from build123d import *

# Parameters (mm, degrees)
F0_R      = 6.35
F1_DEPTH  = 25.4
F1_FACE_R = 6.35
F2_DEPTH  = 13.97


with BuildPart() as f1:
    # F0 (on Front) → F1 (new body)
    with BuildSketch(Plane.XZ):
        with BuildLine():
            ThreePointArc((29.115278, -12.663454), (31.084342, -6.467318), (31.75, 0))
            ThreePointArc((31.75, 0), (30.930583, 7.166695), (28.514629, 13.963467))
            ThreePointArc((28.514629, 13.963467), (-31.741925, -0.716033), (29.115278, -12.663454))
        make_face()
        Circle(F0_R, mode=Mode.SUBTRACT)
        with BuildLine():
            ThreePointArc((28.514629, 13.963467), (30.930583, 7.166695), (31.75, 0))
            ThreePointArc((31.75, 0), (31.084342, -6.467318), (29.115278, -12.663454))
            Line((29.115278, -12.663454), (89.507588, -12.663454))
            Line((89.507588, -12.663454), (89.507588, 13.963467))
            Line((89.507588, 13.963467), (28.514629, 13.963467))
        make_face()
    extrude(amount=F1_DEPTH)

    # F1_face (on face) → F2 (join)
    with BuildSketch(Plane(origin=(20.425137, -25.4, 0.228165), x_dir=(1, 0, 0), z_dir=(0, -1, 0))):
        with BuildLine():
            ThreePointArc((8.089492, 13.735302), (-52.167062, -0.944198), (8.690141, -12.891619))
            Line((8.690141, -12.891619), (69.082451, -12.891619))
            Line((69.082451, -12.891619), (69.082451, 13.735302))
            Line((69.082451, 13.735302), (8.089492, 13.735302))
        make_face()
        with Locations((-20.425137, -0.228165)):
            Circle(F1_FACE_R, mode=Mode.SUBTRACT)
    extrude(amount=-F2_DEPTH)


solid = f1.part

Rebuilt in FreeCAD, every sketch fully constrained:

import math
import FreeCAD as App
import Part
import Sketcher
Q = App.Units.Quantity

doc = App.newDocument("Part")
body = doc.addObject("PartDesign::Body", "Body")

# Sketch on XZ plane
sketch1 = body.newObject("Sketcher::SketchObject", "Sketch")
sketch1.AttachmentSupport = (doc.getObject("XZ_Plane"), [""])
sketch1.MapMode = "FlatFace"
sketch1.addGeometry([
    Part.ArcOfCircle(Part.Circle(App.Vector(0, 0, 0), App.Vector(0, 0, 1), 31.75), math.radians(26.090754), math.radians(336.49376)),  # 0
    Part.LineSegment(App.Vector(29.115278, -12.663454, 0), App.Vector(89.507588, -12.663454, 0)),  # 1
    Part.LineSegment(App.Vector(89.507588, -12.663454, 0), App.Vector(89.507588, 13.963467, 0)),  # 2
    Part.LineSegment(App.Vector(89.507588, 13.963467, 0), App.Vector(28.514629, 13.963467, 0)),  # 3
    Part.Circle(App.Vector(0, 0, 0), App.Vector(0, 0, 1), 6.35),  # 4
], False)
sketch1.addConstraint([
    Sketcher.Constraint("Coincident", 0, 2, 1, 1),
    Sketcher.Constraint("Coincident", 1, 2, 2, 1),
    Sketcher.Constraint("Coincident", 2, 2, 3, 1),
    Sketcher.Constraint("Coincident", 3, 2, 0, 1),
    Sketcher.Constraint("Horizontal", 1),
    Sketcher.Constraint("Vertical", 2),
    Sketcher.Constraint("Horizontal", 3),
    Sketcher.Constraint("Coincident", 0, 3, -1, 1),
    Sketcher.Constraint("Coincident", 4, 3, -1, 1),
    Sketcher.Constraint("Diameter", 4, Q("0.5 in")),
    Sketcher.Constraint("Radius", 0, Q("1.25 in")),
    Sketcher.Constraint("DistanceX", 1, 1, 1, 2, Q("60.39231 mm")),
    Sketcher.Constraint("DistanceX", 3, 2, 3, 1, Q("60.992959 mm")),
    Sketcher.Constraint("DistanceY", 2, 1, 2, 2, Q("26.626921 mm")),
])
pad1 = body.newObject("PartDesign::Pad", "Pad")
pad1.Profile = sketch1
pad1.Length = Q("1 in")

# Sketch on XZ plane
sketch2 = body.newObject("Sketcher::SketchObject", "Sketch001")
sketch2.AttachmentSupport = (doc.getObject("XZ_Plane"), [""])
sketch2.MapMode = "FlatFace"
sketch2.AttachmentOffset = App.Placement(App.Vector(0, 0, 1 * 25.4), App.Rotation())
sketch2.addGeometry([
    Part.ArcOfCircle(Part.Circle(App.Vector(0, 0, 0), App.Vector(0, 0, 1), 31.75), math.radians(26.090754), math.radians(336.49376)),  # 0
    Part.LineSegment(App.Vector(29.115278, -12.663454, 0), App.Vector(89.507588, -12.663454, 0)),  # 1
    Part.LineSegment(App.Vector(89.507588, -12.663454, 0), App.Vector(89.507588, 13.963467, 0)),  # 2
    Part.LineSegment(App.Vector(89.507588, 13.963467, 0), App.Vector(28.514629, 13.963467, 0)),  # 3
    Part.Circle(App.Vector(0, 0, 0), App.Vector(0, 0, 1), 6.35),  # 4
], False)
sketch2.addConstraint([
    Sketcher.Constraint("Coincident", 0, 2, 1, 1),
    Sketcher.Constraint("Coincident", 1, 2, 2, 1),
    Sketcher.Constraint("Coincident", 2, 2, 3, 1),
    Sketcher.Constraint("Coincident", 3, 2, 0, 1),
    Sketcher.Constraint("Horizontal", 1),
    Sketcher.Constraint("Vertical", 2),
    Sketcher.Constraint("Horizontal", 3),
    Sketcher.Constraint("Coincident", 0, 3, -1, 1),
    Sketcher.Constraint("Coincident", 4, 3, -1, 1),
    Sketcher.Constraint("Diameter", 4, Q("0.5 in")),
    Sketcher.Constraint("Radius", 0, Q("1.25 in")),
    Sketcher.Constraint("DistanceX", 1, 1, 1, 2, Q("60.39231 mm")),
    Sketcher.Constraint("DistanceX", 3, 2, 3, 1, Q("60.992959 mm")),
    Sketcher.Constraint("DistanceY", 2, 1, 2, 2, Q("26.626921 mm")),
])
pad2 = body.newObject("PartDesign::Pad", "Pad001")
pad2.Profile = sketch2
pad2.Length = Q("0.55 in")
pad2.Reversed = True

doc.recompute()
